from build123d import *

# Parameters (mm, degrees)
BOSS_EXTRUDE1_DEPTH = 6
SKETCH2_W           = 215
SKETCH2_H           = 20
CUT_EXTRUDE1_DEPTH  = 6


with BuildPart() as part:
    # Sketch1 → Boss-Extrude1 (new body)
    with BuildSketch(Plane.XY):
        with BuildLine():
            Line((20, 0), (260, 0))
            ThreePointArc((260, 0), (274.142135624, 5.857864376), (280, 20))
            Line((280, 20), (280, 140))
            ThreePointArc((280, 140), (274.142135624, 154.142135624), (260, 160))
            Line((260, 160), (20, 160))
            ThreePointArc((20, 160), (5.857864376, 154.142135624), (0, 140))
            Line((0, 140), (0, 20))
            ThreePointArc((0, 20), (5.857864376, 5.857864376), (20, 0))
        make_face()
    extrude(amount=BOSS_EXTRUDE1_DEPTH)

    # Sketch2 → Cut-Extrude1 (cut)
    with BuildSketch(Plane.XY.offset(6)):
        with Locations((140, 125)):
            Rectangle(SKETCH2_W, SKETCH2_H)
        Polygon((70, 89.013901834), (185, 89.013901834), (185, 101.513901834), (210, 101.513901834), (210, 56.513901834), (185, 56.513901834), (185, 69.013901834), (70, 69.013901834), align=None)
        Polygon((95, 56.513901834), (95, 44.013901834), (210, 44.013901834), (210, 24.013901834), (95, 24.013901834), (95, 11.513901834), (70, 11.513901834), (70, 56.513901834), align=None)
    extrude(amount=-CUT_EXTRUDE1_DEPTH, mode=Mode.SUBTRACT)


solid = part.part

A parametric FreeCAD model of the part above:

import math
import FreeCAD as App
import Part
import Sketcher

V = App.Vector

doc = App.newDocument("Part")
body = doc.addObject("PartDesign::Body", "Body")

# Sketch on XY plane
sketch1 = body.newObject("Sketcher::SketchObject", "Sketch")
sketch1.AttachmentSupport = (doc.getObject("XY_Plane"), [""])
sketch1.MapMode = "FlatFace"
sketch1.addGeometry([
    Part.LineSegment(V(20, 0, 0), V(260, 0, 0)),  # 0
    Part.ArcOfCircle(Part.Circle(V(260, 20, 0), V(0, 0, 1), 20), math.radians(-90), math.radians(0)),  # 1
    Part.LineSegment(V(280, 20, 0), V(280, 140, 0)),  # 2
    Part.ArcOfCircle(Part.Circle(V(260, 140, 0), V(0, 0, 1), 20), math.radians(0), math.radians(90)),  # 3
    Part.LineSegment(V(260, 160, 0), V(20, 160, 0)),  # 4
    Part.ArcOfCircle(Part.Circle(V(20, 140, 0), V(0, 0, 1), 20), math.radians(90), math.radians(180)),  # 5
    Part.LineSegment(V(0, 140, 0), V(0, 20, 0)),  # 6
    Part.ArcOfCircle(Part.Circle(V(20, 20, 0), V(0, 0, 1), 20), math.radians(180), math.radians(270)),  # 7
], False)
sketch1.addConstraint([
    Sketcher.Constraint("Tangent", 0, 2, 1, 1),
    Sketcher.Constraint("Tangent", 1, 2, 2, 1),
    Sketcher.Constraint("Tangent", 2, 2, 3, 1),
    Sketcher.Constraint("Tangent", 3, 2, 4, 1),
    Sketcher.Constraint("Tangent", 4, 2, 5, 1),
    Sketcher.Constraint("Tangent", 5, 2, 6, 1),
    Sketcher.Constraint("Tangent", 6, 2, 7, 1),
    Sketcher.Constraint("Tangent", 7, 2, 0, 1),
    Sketcher.Constraint("Horizontal", 0),
    Sketcher.Constraint("Vertical", 2),
    Sketcher.Constraint("Horizontal", 4),
    Sketcher.Constraint("Vertical", 6),
    Sketcher.Constraint("Equal", 1, 3),
    Sketcher.Constraint("Equal", 3, 5),
    Sketcher.Constraint("Equal", 5, 7),
    Sketcher.Constraint("PointOnObject", 0, 2, -1),
    Sketcher.Constraint("PointOnObject", 5, 2, -2),
    Sketcher.Constraint("Radius", 1, 20.0),
    Sketcher.Constraint("DistanceX", 0, 1, 0, 2, 240.0),
    Sketcher.Constraint("DistanceY", 2, 1, 2, 2, 120.0),
])
pad1 = body.newObject("PartDesign::Pad", "Pad")
pad1.Profile = sketch1
pad1.Length = 6

# Sketch on XY plane
sketch2 = body.newObject("Sketcher::SketchObject", "Sketch001")
sketch2.AttachmentSupport = (doc.getObject("XY_Plane"), [""])
sketch2.MapMode = "FlatFace"
sketch2.AttachmentOffset = App.Placement(V(0, 0, 6), App.Rotation())
sketch2.addGeometry([
    Part.LineSegment(V(32, 135, 0), V(32, 115, 0)),  # 0
    Part.LineSegment(V(32, 115, 0), V(248, 115, 0)),  # 1
    Part.LineSegment(V(248, 115, 0), V(248, 135, 0)),  # 2
    Part.LineSegment(V(248, 135, 0), V(32, 135, 0)),  # 3
    Part.LineSegment(V(185, 89, 0), V(70, 89, 0)),  # 4
    Part.LineSegment(V(70, 89, 0), V(70, 69, 0)),  # 5
    Part.LineSegment(V(70, 69, 0), V(185, 69, 0)),  # 6
    Part.LineSegment(V(185, 69, 0), V(185, 57, 0)),  # 7
    Part.LineSegment(V(185, 57, 0), V(210, 57, 0)),  # 8
    Part.LineSegment(V(210, 57, 0), V(210, 102, 0)),  # 9
    Part.LineSegment(V(210, 102, 0), V(185, 102, 0)),  # 10
    Part.LineSegment(V(185, 102, 0), V(185, 89, 0)),  # 11
    Part.LineSegment(V(95, 44, 0), V(95, 57, 0)),  # 12
    Part.LineSegment(V(95, 57, 0), V(70, 57, 0)),  # 13
    Part.LineSegment(V(70, 57, 0), V(70, 12, 0)),  # 14
    Part.LineSegment(V(70, 12, 0), V(95, 12, 0)),  # 15
    Part.LineSegment(V(95, 12, 0), V(95, 24, 0)),  # 16
    Part.LineSegment(V(95, 24, 0), V(210, 24, 0)),  # 17
    Part.LineSegment(V(210, 24, 0), V(210, 44, 0)),  # 18
    Part.LineSegment(V(210, 44, 0), V(95, 44, 0)),  # 19
], False)
sketch2.addConstraint([
    Sketcher.Constraint("Coincident", 0, 2, 1, 1),
    Sketcher.Constraint("Coincident", 1, 2, 2, 1),
    Sketcher.Constraint("Coincident", 2, 2, 3, 1),
    Sketcher.Constraint("Coincident", 3, 2, 0, 1),
    Sketcher.Constraint("Coincident", 4, 2, 5, 1),
    Sketcher.Constraint("Coincident", 5, 2, 6, 1),
    Sketcher.Constraint("Coincident", 6, 2, 7, 1),
    Sketcher.Constraint("Coincident", 7, 2, 8, 1),
    Sketcher.Constraint("Coincident", 8, 2, 9, 1),
    Sketcher.Constraint("Coincident", 9, 2, 10, 1),
    Sketcher.Constraint("Coincident", 10, 2, 11, 1),
    Sketcher.Constraint("Coincident", 11, 2, 4, 1),
    Sketcher.Constraint("Coincident", 12, 2, 13, 1),
    Sketcher.Constraint("Coincident", 13, 2, 14, 1),
    Sketcher.Constraint("Coincident", 14, 2, 15, 1),
    Sketcher.Constraint("Coincident", 15, 2, 16, 1),
    Sketcher.Constraint("Coincident", 16, 2, 17, 1),
    Sketcher.Constraint("Coincident", 17, 2, 18, 1),
    Sketcher.Constraint("Coincident", 18, 2, 19, 1),
    Sketcher.Constraint("Coincident", 19, 2, 12, 1),
    Sketcher.Constraint("Vertical", 0),
    Sketcher.Constraint("Horizontal", 1),
    Sketcher.Constraint("Vertical", 2),
    Sketcher.Constraint("Horizontal", 3),
    Sketcher.Constraint("Horizontal", 4),
    Sketcher.Constraint("Vertical", 5),
    Sketcher.Constraint("Horizontal", 6),
    Sketcher.Constraint("Vertical", 7),
    Sketcher.Constraint("Horizontal", 8),
    Sketcher.Constraint("Vertical", 9),
    Sketcher.Constraint("Horizontal", 10),
    Sketcher.Constraint("Vertical", 11),
    Sketcher.Constraint("Vertical", 12),
    Sketcher.Constraint("Horizontal", 13),
    Sketcher.Constraint("Vertical", 14),
    Sketcher.Constraint("Horizontal", 15),
    Sketcher.Constraint("Vertical", 16),
    Sketcher.Constraint("Horizontal", 17),
    Sketcher.Constraint("Vertical", 18),
    Sketcher.Constraint("Horizontal", 19),
    Sketcher.Constraint("Horizontal", 8, 2, 12, 2),
    Sketcher.Constraint("Vertical", 7, 2, 10, 2),
    Sketcher.Constraint("Vertical", 5, 2, 13, 2),
    Sketcher.Constraint("Vertical", 12, 2, 15, 2),
    Sketcher.Constraint("Vertical", 9, 2, 17, 2),
    Sketcher.Constraint("Equal", 10, 13),
    Sketcher.Constraint("Equal", 2, 5),
    Sketcher.Constraint("Equal", 7, 11),
    Sketcher.Constraint("Equal", 11, 12),
    Sketcher.Constraint("Equal", 9, 14),
    Sketcher.Constraint("Equal", 12, 16),
    Sketcher.Constraint("DistanceX", 1, 1, 1, 2, 215.0),
    Sketcher.Constraint("DistanceX", 4, 2, 4, 1, 115.0),
    Sketcher.Constraint("DistanceX", 8, 1, 8, 2, 25.0),
    Sketcher.Constraint("DistanceY", 0, 2, 0, 1, 20.0),
    Sketcher.Constraint("DistanceY", 9, 1, 9, 2, 45.0),
    Sketcher.Constraint("DistanceY", -1, 1, 0, 2, 115.0),
    Sketcher.Constraint("DistanceX", -1, 1, 4, 2, 70.0),
    Sketcher.Constraint("DistanceX", -1, 1, 0, 2, 32.5),
    Sketcher.Constraint("DistanceY", -1, 1, 4, 2, 89.013902),
])
pocket1 = body.newObject("PartDesign::Pocket", "Pocket")
pocket1.Profile = sketch2
pocket1.Length = 6

doc.recompute()
